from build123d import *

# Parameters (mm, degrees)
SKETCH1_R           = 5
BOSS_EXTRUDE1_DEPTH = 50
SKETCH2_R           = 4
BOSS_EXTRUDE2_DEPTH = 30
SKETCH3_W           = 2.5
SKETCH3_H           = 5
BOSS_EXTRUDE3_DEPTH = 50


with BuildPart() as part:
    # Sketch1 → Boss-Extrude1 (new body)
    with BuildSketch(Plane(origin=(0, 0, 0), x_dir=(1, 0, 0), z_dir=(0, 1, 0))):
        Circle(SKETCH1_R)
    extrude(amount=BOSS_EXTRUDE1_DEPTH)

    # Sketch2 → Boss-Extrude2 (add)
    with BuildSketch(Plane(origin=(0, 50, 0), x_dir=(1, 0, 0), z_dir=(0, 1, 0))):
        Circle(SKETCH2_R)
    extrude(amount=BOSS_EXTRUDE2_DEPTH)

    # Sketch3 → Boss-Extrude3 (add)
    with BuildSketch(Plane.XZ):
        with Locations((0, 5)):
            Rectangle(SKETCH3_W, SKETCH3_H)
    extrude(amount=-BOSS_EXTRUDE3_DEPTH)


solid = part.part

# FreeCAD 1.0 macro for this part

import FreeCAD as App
import Part
import Sketcher
from FreeCAD import Vector
Q = App.Units.Quantity

doc = App.newDocument("Part")
body = doc.addObject("PartDesign::Body", "Body")

sketch1 = body.newObject("Sketcher::SketchObject", "Sketch")
sketch1.AttachmentSupport = (doc.getObject("XZ_Plane"), [""])
sketch1.MapMode = "FlatFace"
sketch1.addGeometry(Part.Circle(Vector(0, 0, 0), Vector(0, 0, 1), 5), False)
sketch1.addConstraint(Sketcher.Constraint("Coincident", 0, 3, -1, 1))
sketch1.addConstraint(Sketcher.Constraint("Diameter", 0, Q("10 mm")))
pad1 = body.newObject("PartDesign::Pad", "Pad")
pad1.Profile = sketch1
pad1.Length = 50
pad1.Reversed = True

sketch2 = body.newObject("Sketcher::SketchObject", "Sketch001")
sketch2.AttachmentSupport = (doc.getObject("XZ_Plane"), [""])
sketch2.MapMode = "FlatFace"
sketch2.AttachmentOffset = App.Placement(Vector(0, 0, -50), App.Rotation())
sketch2.addGeometry(Part.Circle(Vector(0, 0, 0), Vector(0, 0, 1), 4), False)
sketch2.addConstraint(Sketcher.Constraint("Coincident", 0, 3, -1, 1))
sketch2.addConstraint(Sketcher.Constraint("Diameter", 0, Q("8 mm")))
pad2 = body.newObject("PartDesign::Pad", "Pad001")
pad2.Profile = sketch2
pad2.Length = 30
pad2.Reversed = True

sketch3 = body.newObject("Sketcher::SketchObject", "Sketch002")
sketch3.AttachmentSupport = (doc.getObject("XZ_Plane"), [""])
sketch3.MapMode = "FlatFace"
sketch3.addGeometry(Part.LineSegment(Vector(-1.2, 7.5, 0), Vector(-1.2, 2.5, 0)), False)
sketch3.addGeometry(Part.LineSegment(Vector(-1.2, 2.5, 0), Vector(1.2, 2.5, 0)), False)
sketch3.addGeometry(Part.LineSegment(Vector(1.2, 2.5, 0), Vector(1.2, 7.5, 0)), False)
sketch3.addGeometry(Part.LineSegment(Vector(1.2, 7.5, 0), Vector(-1.2, 7.5, 0)), False)
sketch3.addConstraint(Sketcher.Constraint("Coincident", 0, 2, 1, 1))
sketch3.addConstraint(Sketcher.Constraint("Coincident", 1, 2, 2, 1))
sketch3.addConstraint(Sketcher.Constraint("Coincident", 2, 2, 3, 1))
sketch3.addConstraint(Sketcher.Constraint("Coincident", 3, 2, 0, 1))
sketch3.addConstraint(Sketcher.Constraint("Vertical", 0))
sketch3.addConstraint(Sketcher.Constraint("Horizontal", 1))
sketch3.addConstraint(Sketcher.Constraint("Vertical", 2))
sketch3.addConstraint(Sketcher.Constraint("Horizontal", 3))
sketch3.addConstraint(Sketcher.Constraint("DistanceY", 0, 2, 0, 1, Q("5 mm")))
sketch3.addConstraint(Sketcher.Constraint("DistanceX", 1, 1, 1, 2, Q("2.5 mm")))
sketch3.addConstraint(Sketcher.Constraint("DistanceY", -1, 1, 0, 2, Q("2.5 mm")))
sketch3.addConstraint(Sketcher.Constraint("DistanceX", 0, 2, -1, 1, Q("1.25 mm")))
pad3 = body.newObject("PartDesign::Pad", "Pad002")
pad3.Profile = sketch3
pad3.Length = 50
pad3.Reversed = True

doc.recompute()
